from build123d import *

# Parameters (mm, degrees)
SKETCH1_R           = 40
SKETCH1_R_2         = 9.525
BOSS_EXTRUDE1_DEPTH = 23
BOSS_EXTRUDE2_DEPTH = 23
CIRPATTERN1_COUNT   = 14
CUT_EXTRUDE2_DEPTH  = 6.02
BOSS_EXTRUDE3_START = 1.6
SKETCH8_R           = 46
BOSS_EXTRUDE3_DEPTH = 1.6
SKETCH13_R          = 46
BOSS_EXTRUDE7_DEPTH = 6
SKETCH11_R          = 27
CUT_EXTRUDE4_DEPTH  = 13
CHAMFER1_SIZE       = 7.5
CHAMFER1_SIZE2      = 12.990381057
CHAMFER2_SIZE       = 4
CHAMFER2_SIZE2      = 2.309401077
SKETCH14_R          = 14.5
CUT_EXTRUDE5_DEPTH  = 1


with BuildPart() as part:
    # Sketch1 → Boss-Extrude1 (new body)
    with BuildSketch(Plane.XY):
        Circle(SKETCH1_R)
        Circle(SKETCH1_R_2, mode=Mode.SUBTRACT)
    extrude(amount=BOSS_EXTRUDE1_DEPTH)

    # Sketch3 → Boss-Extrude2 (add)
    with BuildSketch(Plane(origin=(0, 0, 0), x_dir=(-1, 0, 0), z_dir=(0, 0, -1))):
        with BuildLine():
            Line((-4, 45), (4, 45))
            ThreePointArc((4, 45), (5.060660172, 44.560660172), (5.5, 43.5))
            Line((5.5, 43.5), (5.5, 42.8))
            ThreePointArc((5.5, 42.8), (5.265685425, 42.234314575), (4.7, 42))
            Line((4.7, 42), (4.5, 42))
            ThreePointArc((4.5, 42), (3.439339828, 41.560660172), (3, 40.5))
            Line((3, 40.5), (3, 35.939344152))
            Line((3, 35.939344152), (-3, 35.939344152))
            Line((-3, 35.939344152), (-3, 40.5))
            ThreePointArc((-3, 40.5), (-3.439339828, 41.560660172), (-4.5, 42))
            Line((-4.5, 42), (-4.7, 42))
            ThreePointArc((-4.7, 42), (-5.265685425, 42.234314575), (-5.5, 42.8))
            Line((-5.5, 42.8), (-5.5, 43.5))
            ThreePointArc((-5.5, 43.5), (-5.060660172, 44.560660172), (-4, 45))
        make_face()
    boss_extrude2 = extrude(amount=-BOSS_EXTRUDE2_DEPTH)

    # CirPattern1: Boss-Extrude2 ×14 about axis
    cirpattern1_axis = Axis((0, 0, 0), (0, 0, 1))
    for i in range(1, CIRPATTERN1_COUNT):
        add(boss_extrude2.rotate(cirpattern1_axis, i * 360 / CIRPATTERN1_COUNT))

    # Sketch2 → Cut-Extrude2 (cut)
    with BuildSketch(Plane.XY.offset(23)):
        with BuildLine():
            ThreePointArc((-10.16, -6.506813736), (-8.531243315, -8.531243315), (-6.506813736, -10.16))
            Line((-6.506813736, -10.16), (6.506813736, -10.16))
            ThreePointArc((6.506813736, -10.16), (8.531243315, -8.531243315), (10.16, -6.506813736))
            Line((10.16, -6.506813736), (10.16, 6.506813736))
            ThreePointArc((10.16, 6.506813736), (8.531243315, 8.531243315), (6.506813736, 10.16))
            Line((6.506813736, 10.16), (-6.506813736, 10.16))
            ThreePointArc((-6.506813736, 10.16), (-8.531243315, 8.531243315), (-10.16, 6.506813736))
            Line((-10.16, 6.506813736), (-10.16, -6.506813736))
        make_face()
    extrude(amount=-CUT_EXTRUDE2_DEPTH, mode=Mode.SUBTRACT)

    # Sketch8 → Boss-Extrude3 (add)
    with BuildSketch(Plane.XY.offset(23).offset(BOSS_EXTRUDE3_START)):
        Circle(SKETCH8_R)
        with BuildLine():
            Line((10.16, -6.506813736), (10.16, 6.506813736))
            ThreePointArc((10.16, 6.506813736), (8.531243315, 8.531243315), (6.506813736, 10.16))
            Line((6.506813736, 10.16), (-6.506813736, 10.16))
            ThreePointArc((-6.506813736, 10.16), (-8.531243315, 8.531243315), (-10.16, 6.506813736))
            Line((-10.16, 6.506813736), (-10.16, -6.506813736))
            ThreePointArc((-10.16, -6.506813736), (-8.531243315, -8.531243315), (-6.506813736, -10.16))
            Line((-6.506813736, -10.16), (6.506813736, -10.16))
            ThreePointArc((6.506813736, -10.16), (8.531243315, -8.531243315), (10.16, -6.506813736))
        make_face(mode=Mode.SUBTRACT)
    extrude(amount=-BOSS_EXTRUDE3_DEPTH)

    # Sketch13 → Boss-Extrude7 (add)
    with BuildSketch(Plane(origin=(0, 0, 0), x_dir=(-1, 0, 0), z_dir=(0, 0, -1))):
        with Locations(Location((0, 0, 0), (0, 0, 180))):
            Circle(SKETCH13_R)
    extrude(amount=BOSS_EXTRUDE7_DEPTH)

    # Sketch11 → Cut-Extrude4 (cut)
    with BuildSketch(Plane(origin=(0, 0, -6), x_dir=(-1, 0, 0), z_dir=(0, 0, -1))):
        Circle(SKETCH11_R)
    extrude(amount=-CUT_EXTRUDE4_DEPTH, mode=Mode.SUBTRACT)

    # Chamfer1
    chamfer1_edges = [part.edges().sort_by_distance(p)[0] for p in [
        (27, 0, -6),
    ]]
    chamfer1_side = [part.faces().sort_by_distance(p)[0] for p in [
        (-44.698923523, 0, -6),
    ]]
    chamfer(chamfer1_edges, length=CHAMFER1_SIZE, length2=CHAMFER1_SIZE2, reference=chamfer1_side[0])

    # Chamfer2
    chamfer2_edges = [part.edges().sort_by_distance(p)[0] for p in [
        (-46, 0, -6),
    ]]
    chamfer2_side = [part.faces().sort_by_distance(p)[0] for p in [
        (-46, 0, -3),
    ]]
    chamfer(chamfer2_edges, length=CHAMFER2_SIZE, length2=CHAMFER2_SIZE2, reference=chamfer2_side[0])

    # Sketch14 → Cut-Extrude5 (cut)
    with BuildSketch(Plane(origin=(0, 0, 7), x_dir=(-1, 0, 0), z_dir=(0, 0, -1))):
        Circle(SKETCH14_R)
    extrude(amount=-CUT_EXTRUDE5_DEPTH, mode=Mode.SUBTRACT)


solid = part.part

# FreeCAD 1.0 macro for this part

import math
import FreeCAD as App
import Part
import Sketcher


def edges_at(feature, points):
    """Names of the edges that pass closest to the given points."""
    edges = feature.Shape.Edges
    near = lambda p: min(range(len(edges)), key=lambda i: edges[i].distToShape(Part.Vertex(*p))[0])
    return sorted({f"Edge{near(p) + 1}" for p in points})

doc = App.newDocument("Part")
params = doc.addObject("Spreadsheet::Sheet", "Params")
for row, (alias, value) in enumerate([
    ("sketch1_diameter", "80 mm"),
    ("sketch1_diameter2", "19.05 mm"),
    ("pad1_length", "23 mm"),
    ("sketch2_radius", "1.5 mm"),
    ("sketch2_radius2", "0.8 mm"),
    ("sketch2_width", "8 mm"),
    ("sketch2_width2", "6 mm"),
    ("sketch2_height", "0.7 mm"),
    ("pad2_length", "23 mm"),
    ("pocket1_length", "6.02 mm"),
    ("sketch4_diameter", "92 mm"),
    ("pad3_length", "1.6 mm"),
    ("sketch5_diameter", "92 mm"),
    ("pad4_length", "6 mm"),
    ("sketch6_diameter", "54 mm"),
    ("pocket2_length", "13 mm"),
    ("chamfer_size", "7.5 mm"),
    ("chamfer_size2", "12.990381 mm"),
    ("chamfer2_size", "4 mm"),
    ("chamfer2_size2", "2.309401 mm"),
    ("sketch7_diameter", "29 mm"),
    ("pocket3_length", "1 mm"),
], start=1):
    params.set(f"A{row}", alias)
    params.set(f"B{row}", "=" + value)
    params.setAlias(f"B{row}", alias)

body = doc.addObject("PartDesign::Body", "Body")

# Sketch on XY plane
sketch1 = doc.addObject("Sketcher::SketchObject", "Sketch")
body.addObject(sketch1)
sketch1.AttachmentSupport = (doc.XY_Plane, [""])
sketch1.MapMode = "FlatFace"
sketch1.addGeometry([
    Part.Circle(App.Vector(0, 0, 0), App.Vector(0, 0, 1), 40),
    Part.Circle(App.Vector(0, 0, 0), App.Vector(0, 0, 1), 10),
], False)
sketch1.addConstraint([
    Sketcher.Constraint("Coincident", 0, 3, -1, 1),
    Sketcher.Constraint("Coincident", 1, 3, -1, 1),
    Sketcher.Constraint("Diameter", 0, 80.0),
    Sketcher.Constraint("Diameter", 1, 19.05),
])
sketch1.setExpression("Constraints[2]", "Params.sketch1_diameter")
sketch1.setExpression("Constraints[3]", "Params.sketch1_diameter2")
pad1 = doc.addObject("PartDesign::Pad", "Pad")
body.addObject(pad1)
pad1.Profile = sketch1
pad1.setExpression("Length", "Params.pad1_length")

# Sketch on XY plane
sketch2 = doc.addObject("Sketcher::SketchObject", "Sketch001")
body.addObject(sketch2)
sketch2.AttachmentSupport = (doc.XY_Plane, [""])
sketch2.MapMode = "FlatFace"
sketch2.addGeometry([
    Part.LineSegment(App.Vector(-4, 45, 0), App.Vector(4, 45, 0)),  # 0
    Part.ArcOfCircle(Part.Circle(App.Vector(4, 43.5, 0), App.Vector(0, 0, 1), 1.5), math.radians(0), math.radians(90)),  # 1
    Part.LineSegment(App.Vector(5.5, 43.5, 0), App.Vector(5.5, 42.8, 0)),  # 2
    Part.ArcOfCircle(Part.Circle(App.Vector(4.7, 42.8, 0), App.Vector(0, 0, 1), 0.8), math.radians(-90), math.radians(0)),  # 3
    Part.LineSegment(App.Vector(4.7, 42, 0), App.Vector(4.5, 42, 0)),  # 4
    Part.ArcOfCircle(Part.Circle(App.Vector(4.5, 40.5, 0), App.Vector(0, 0, 1), 1.5), math.radians(90), math.radians(180)),  # 5
    Part.LineSegment(App.Vector(3, 40.5, 0), App.Vector(3, 35.94, 0)),  # 6
    Part.LineSegment(App.Vector(3, 35.94, 0), App.Vector(-3, 35.94, 0)),  # 7
    Part.LineSegment(App.Vector(-3, 35.94, 0), App.Vector(-3, 40.5, 0)),  # 8
    Part.ArcOfCircle(Part.Circle(App.Vector(-4.5, 40.5, 0), App.Vector(0, 0, 1), 1.5), math.radians(0), math.radians(90)),  # 9
    Part.LineSegment(App.Vector(-4.5, 42, 0), App.Vector(-4.7, 42, 0)),  # 10
    Part.ArcOfCircle(Part.Circle(App.Vector(-4.7, 42.8, 0), App.Vector(0, 0, 1), 0.8), math.radians(180), math.radians(270)),  # 11
    Part.LineSegment(App.Vector(-5.5, 42.8, 0), App.Vector(-5.5, 43.5, 0)),  # 12
    Part.ArcOfCircle(Part.Circle(App.Vector(-4, 43.5, 0), App.Vector(0, 0, 1), 1.5), math.radians(90), math.radians(180)),  # 13
], False)
sketch2.addConstraint([
    Sketcher.Constraint("Tangent", 0, 2, 1, 2),
    Sketcher.Constraint("Tangent", 1, 1, 2, 1),
    Sketcher.Constraint("Tangent", 2, 2, 3, 2),
    Sketcher.Constraint("Tangent", 3, 1, 4, 1),
    Sketcher.Constraint("Tangent", 4, 2, 5, 1),
    Sketcher.Constraint("Tangent", 5, 2, 6, 1),
    Sketcher.Constraint("Coincident", 6, 2, 7, 1),
    Sketcher.Constraint("Coincident", 7, 2, 8, 1),
    Sketcher.Constraint("Tangent", 8, 2, 9, 1),
    Sketcher.Constraint("Tangent", 9, 2, 10, 1),
    Sketcher.Constraint("Tangent", 10, 2, 11, 2),
    Sketcher.Constraint("Tangent", 11, 1, 12, 1),
    Sketcher.Constraint("Tangent", 12, 2, 13, 2),
    Sketcher.Constraint("Tangent", 13, 1, 0, 1),
    Sketcher.Constraint("Horizontal", 0),
    Sketcher.Constraint("Vertical", 2),
    Sketcher.Constraint("Horizontal", 4),
    Sketcher.Constraint("Vertical", 6),
    Sketcher.Constraint("Horizontal", 7),
    Sketcher.Constraint("Vertical", 8),
    Sketcher.Constraint("Horizontal", 10),
    Sketcher.Constraint("Vertical", 12),
    Sketcher.Constraint("Equal", 1, 5),
    Sketcher.Constraint("Equal", 5, 9),
    Sketcher.Constraint("Equal", 3, 11),
    Sketcher.Constraint("Equal", 9, 13),
    Sketcher.Constraint("Symmetric", 5, 3, 9, 3, -2),
    Sketcher.Constraint("Equal", 4, 10),
    Sketcher.Constraint("Radius", 1, 1.5),
    Sketcher.Constraint("Radius", 3, 0.8),
    Sketcher.Constraint("DistanceX", 0, 1, 0, 2, 8.0),
    Sketcher.Constraint("DistanceX", 7, 2, 7, 1, 6.0),
    Sketcher.Constraint("DistanceY", 2, 2, 2, 1, 0.7),
    Sketcher.Constraint("DistanceY", -1, 1, 0, 2, 45.0),
    Sketcher.Constraint("DistanceY", 6, 2, 6, 1, 4.560656),
])
sketch2.setExpression("Constraints[28]", "Params.sketch2_radius")
sketch2.setExpression("Constraints[29]", "Params.sketch2_radius2")
sketch2.setExpression("Constraints[30]", "Params.sketch2_width")
sketch2.setExpression("Constraints[31]", "Params.sketch2_width2")
sketch2.setExpression("Constraints[32]", "Params.sketch2_height")
pad2 = doc.addObject("PartDesign::Pad", "Pad001")
body.addObject(pad2)
pad2.Profile = sketch2
pad2.setExpression("Length", "Params.pad2_length")
doc.recompute()

polarpattern = doc.addObject("PartDesign::PolarPattern", "PolarPattern")
body.addObject(polarpattern)
polarpattern.Originals = [pad2]
polarpattern.Axis = (doc.Z_Axis, [""])
polarpattern.Angle = 360
polarpattern.Occurrences = 14
body.Tip = polarpattern

# Sketch on XY plane
sketch3 = doc.addObject("Sketcher::SketchObject", "Sketch002")
body.addObject(sketch3)
sketch3.AttachmentSupport = (doc.XY_Plane, [""])
sketch3.MapMode = "FlatFace"
sketch3.AttachmentOffset = App.Placement(App.Vector(0, 0, 23), App.Rotation())
sketch3.addGeometry([
    Part.ArcOfCircle(Part.Circle(App.Vector(0, 0, 0), App.Vector(0, 0, 1), 12), math.radians(-147), math.radians(-123)),  # 0
    Part.LineSegment(App.Vector(-7, -10, 0), App.Vector(7, -10, 0)),  # 1
    Part.ArcOfCircle(Part.Circle(App.Vector(0, 0, 0), App.Vector(0, 0, 1), 12), math.radians(-57), math.radians(-33)),  # 2
    Part.LineSegment(App.Vector(10, -7, 0), App.Vector(10, 7, 0)),  # 3
    Part.ArcOfCircle(Part.Circle(App.Vector(0, 0, 0), App.Vector(0, 0, 1), 12), math.radians(33), math.radians(57)),  # 4
    Part.LineSegment(App.Vector(7, 10, 0), App.Vector(-7, 10, 0)),  # 5
    Part.ArcOfCircle(Part.Circle(App.Vector(0, 0, 0), App.Vector(0, 0, 1), 12), math.radians(123), math.radians(147)),  # 6
    Part.LineSegment(App.Vector(-10, 7, 0), App.Vector(-10, -7, 0)),  # 7
], False)
sketch3.addConstraint([
    Sketcher.Constraint("Coincident", 0, 2, 1, 1),
    Sketcher.Constraint("Coincident", 1, 2, 2, 1),
    Sketcher.Constraint("Coincident", 2, 2, 3, 1),
    Sketcher.Constraint("Coincident", 3, 2, 4, 1),
    Sketcher.Constraint("Coincident", 4, 2, 5, 1),
    Sketcher.Constraint("Coincident", 5, 2, 6, 1),
    Sketcher.Constraint("Coincident", 6, 2, 7, 1),
    Sketcher.Constraint("Coincident", 7, 2, 0, 1),
    Sketcher.Constraint("Horizontal", 1),
    Sketcher.Constraint("Vertical", 3),
    Sketcher.Constraint("Horizontal", 5),
    Sketcher.Constraint("Vertical", 7),
    Sketcher.Constraint("Coincident", 0, 3, -1, 1),
    Sketcher.Constraint("Coincident", 2, 3, -1, 1),
    Sketcher.Constraint("Coincident", 4, 3, -1, 1),
    Sketcher.Constraint("Coincident", 6, 3, -1, 1),
    Sketcher.Constraint("Equal", 0, 2),
    Sketcher.Constraint("Equal", 2, 4),
    Sketcher.Constraint("Equal", 4, 6),
    Sketcher.Constraint("Horizontal", 3, 2, 6, 2),
    Sketcher.Constraint("Vertical", 1, 2, 4, 2),
    Sketcher.Constraint("Equal", 5, 3),
    Sketcher.Constraint("Radius", 0, 12.065),
    Sketcher.Constraint("DistanceY", 0, 2, -1, 1, 10.16),
])
pocket1 = doc.addObject("PartDesign::Pocket", "Pocket")
body.addObject(pocket1)
pocket1.Profile = sketch3
pocket1.setExpression("Length", "Params.pocket1_length")

# Sketch on XY plane
sketch4 = doc.addObject("Sketcher::SketchObject", "Sketch003")
body.addObject(sketch4)
sketch4.AttachmentSupport = (doc.XY_Plane, [""])
sketch4.MapMode = "FlatFace"
sketch4.AttachmentOffset = App.Placement(App.Vector(0, 0, 24.6), App.Rotation())
sketch4.addGeometry([
    Part.Circle(App.Vector(0, 0, 0), App.Vector(0, 0, 1), 46),  # 0
    Part.LineSegment(App.Vector(10, 7, 0), App.Vector(10, -7, 0)),  # 1
    Part.ArcOfCircle(Part.Circle(App.Vector(0, 0, 0), App.Vector(0, 0, 1), 12), math.radians(-57), math.radians(-33)),  # 2
    Part.LineSegment(App.Vector(7, -10, 0), App.Vector(-7, -10, 0)),  # 3
    Part.ArcOfCircle(Part.Circle(App.Vector(0, 0, 0), App.Vector(0, 0, 1), 12), math.radians(-147), math.radians(-123)),  # 4
    Part.LineSegment(App.Vector(-10, -7, 0), App.Vector(-10, 7, 0)),  # 5
    Part.ArcOfCircle(Part.Circle(App.Vector(0, 0, 0), App.Vector(0, 0, 1), 12), math.radians(123), math.radians(147)),  # 6
    Part.LineSegment(App.Vector(-7, 10, 0), App.Vector(7, 10, 0)),  # 7
    Part.ArcOfCircle(Part.Circle(App.Vector(0, 0, 0), App.Vector(0, 0, 1), 12), math.radians(33), math.radians(57)),  # 8
], False)
sketch4.addConstraint([
    Sketcher.Constraint("Coincident", 1, 2, 2, 2),
    Sketcher.Constraint("Coincident", 2, 1, 3, 1),
    Sketcher.Constraint("Coincident", 3, 2, 4, 2),
    Sketcher.Constraint("Coincident", 4, 1, 5, 1),
    Sketcher.Constraint("Coincident", 5, 2, 6, 2),
    Sketcher.Constraint("Coincident", 6, 1, 7, 1),
    Sketcher.Constraint("Coincident", 7, 2, 8, 2),
    Sketcher.Constraint("Coincident", 8, 1, 1, 1),
    Sketcher.Constraint("Vertical", 1),
    Sketcher.Constraint("Horizontal", 3),
    Sketcher.Constraint("Vertical", 5),
    Sketcher.Constraint("Horizontal", 7),
    Sketcher.Constraint("Coincident", 0, 3, -1, 1),
    Sketcher.Constraint("Coincident", 2, 3, -1, 1),
    Sketcher.Constraint("Coincident", 4, 3, -1, 1),
    Sketcher.Constraint("Coincident", 6, 3, -1, 1),
    Sketcher.Constraint("Coincident", 8, 3, -1, 1),
    Sketcher.Constraint("Equal", 2, 4),
    Sketcher.Constraint("Equal", 4, 6),
    Sketcher.Constraint("Equal", 6, 8),
    Sketcher.Constraint("Horizontal", 1, 2, 4, 1),
    Sketcher.Constraint("Vertical", 3, 2, 6, 1),
    Sketcher.Constraint("Equal", 7, 1),
    Sketcher.Constraint("Diameter", 0, 92.0),
    Sketcher.Constraint("Radius", 2, 12.065),
    Sketcher.Constraint("DistanceX", -1, 1, 1, 2, 10.16),
])
sketch4.setExpression("Constraints[23]", "Params.sketch4_diameter")
pad3 = doc.addObject("PartDesign::Pad", "Pad002")
body.addObject(pad3)
pad3.Profile = sketch4
pad3.setExpression("Length", "Params.pad3_length")
pad3.Reversed = True

# Sketch on XY plane
sketch5 = doc.addObject("Sketcher::SketchObject", "Sketch004")
body.addObject(sketch5)
sketch5.AttachmentSupport = (doc.XY_Plane, [""])
sketch5.MapMode = "FlatFace"
sketch5.addGeometry(Part.Circle(App.Vector(0, 0, 0), App.Vector(0, 0, 1), 46), False)
sketch5.addConstraint([
    Sketcher.Constraint("Coincident", 0, 3, -1, 1),
    Sketcher.Constraint("Diameter", 0, 92.0),
])
sketch5.setExpression("Constraints[1]", "Params.sketch5_diameter")
pad4 = doc.addObject("PartDesign::Pad", "Pad003")
body.addObject(pad4)
pad4.Profile = sketch5
pad4.setExpression("Length", "Params.pad4_length")
pad4.Reversed = True

# Sketch on XY plane
sketch6 = doc.addObject("Sketcher::SketchObject", "Sketch005")
body.addObject(sketch6)
sketch6.AttachmentSupport = (doc.XY_Plane, [""])
sketch6.MapMode = "FlatFace"
sketch6.AttachmentOffset = App.Placement(App.Vector(0, 0, -6), App.Rotation())
sketch6.addGeometry(Part.Circle(App.Vector(0, 0, 0), App.Vector(0, 0, 1), 27), False)
sketch6.addConstraint([
    Sketcher.Constraint("Coincident", 0, 3, -1, 1),
    Sketcher.Constraint("Diameter", 0, 54.0),
])
sketch6.setExpression("Constraints[1]", "Params.sketch6_diameter")
pocket2 = doc.addObject("PartDesign::Pocket", "Pocket001")
body.addObject(pocket2)
pocket2.Profile = sketch6
pocket2.setExpression("Length", "Params.pocket2_length")
pocket2.Reversed = True
doc.recompute()

chamfer = doc.addObject("PartDesign::Chamfer", "Chamfer")
body.addObject(chamfer)
chamfer.Base = (pocket2, edges_at(pocket2, [(27, 0, -6)]))
chamfer.ChamferType = "Two distances"
chamfer.setExpression("Size", "Params.chamfer_size")
chamfer.setExpression("Size2", "Params.chamfer_size2")
doc.recompute()

chamfer2 = doc.addObject("PartDesign::Chamfer", "Chamfer001")
body.addObject(chamfer2)
chamfer2.Base = (chamfer, edges_at(chamfer, [(-46, 0, -6)]))
chamfer2.ChamferType = "Two distances"
chamfer2.setExpression("Size", "Params.chamfer2_size")
chamfer2.setExpression("Size2", "Params.chamfer2_size2")
chamfer2.FlipDirection = True

# Sketch on XY plane
sketch7 = doc.addObject("Sketcher::SketchObject", "Sketch006")
body.addObject(sketch7)
sketch7.AttachmentSupport = (doc.XY_Plane, [""])
sketch7.MapMode = "FlatFace"
sketch7.AttachmentOffset = App.Placement(App.Vector(0, 0, 7), App.Rotation())
sketch7.addGeometry(Part.Circle(App.Vector(0, 0, 0), App.Vector(0, 0, 1), 14), False)
sketch7.addConstraint([
    Sketcher.Constraint("Coincident", 0, 3, -1, 1),
    Sketcher.Constraint("Diameter", 0, 29.0),
])
sketch7.setExpression("Constraints[1]", "Params.sketch7_diameter")
pocket3 = doc.addObject("PartDesign::Pocket", "Pocket002")
body.addObject(pocket3)
pocket3.Profile = sketch7
pocket3.setExpression("Length", "Params.pocket3_length")
pocket3.Reversed = True

doc.recompute()
